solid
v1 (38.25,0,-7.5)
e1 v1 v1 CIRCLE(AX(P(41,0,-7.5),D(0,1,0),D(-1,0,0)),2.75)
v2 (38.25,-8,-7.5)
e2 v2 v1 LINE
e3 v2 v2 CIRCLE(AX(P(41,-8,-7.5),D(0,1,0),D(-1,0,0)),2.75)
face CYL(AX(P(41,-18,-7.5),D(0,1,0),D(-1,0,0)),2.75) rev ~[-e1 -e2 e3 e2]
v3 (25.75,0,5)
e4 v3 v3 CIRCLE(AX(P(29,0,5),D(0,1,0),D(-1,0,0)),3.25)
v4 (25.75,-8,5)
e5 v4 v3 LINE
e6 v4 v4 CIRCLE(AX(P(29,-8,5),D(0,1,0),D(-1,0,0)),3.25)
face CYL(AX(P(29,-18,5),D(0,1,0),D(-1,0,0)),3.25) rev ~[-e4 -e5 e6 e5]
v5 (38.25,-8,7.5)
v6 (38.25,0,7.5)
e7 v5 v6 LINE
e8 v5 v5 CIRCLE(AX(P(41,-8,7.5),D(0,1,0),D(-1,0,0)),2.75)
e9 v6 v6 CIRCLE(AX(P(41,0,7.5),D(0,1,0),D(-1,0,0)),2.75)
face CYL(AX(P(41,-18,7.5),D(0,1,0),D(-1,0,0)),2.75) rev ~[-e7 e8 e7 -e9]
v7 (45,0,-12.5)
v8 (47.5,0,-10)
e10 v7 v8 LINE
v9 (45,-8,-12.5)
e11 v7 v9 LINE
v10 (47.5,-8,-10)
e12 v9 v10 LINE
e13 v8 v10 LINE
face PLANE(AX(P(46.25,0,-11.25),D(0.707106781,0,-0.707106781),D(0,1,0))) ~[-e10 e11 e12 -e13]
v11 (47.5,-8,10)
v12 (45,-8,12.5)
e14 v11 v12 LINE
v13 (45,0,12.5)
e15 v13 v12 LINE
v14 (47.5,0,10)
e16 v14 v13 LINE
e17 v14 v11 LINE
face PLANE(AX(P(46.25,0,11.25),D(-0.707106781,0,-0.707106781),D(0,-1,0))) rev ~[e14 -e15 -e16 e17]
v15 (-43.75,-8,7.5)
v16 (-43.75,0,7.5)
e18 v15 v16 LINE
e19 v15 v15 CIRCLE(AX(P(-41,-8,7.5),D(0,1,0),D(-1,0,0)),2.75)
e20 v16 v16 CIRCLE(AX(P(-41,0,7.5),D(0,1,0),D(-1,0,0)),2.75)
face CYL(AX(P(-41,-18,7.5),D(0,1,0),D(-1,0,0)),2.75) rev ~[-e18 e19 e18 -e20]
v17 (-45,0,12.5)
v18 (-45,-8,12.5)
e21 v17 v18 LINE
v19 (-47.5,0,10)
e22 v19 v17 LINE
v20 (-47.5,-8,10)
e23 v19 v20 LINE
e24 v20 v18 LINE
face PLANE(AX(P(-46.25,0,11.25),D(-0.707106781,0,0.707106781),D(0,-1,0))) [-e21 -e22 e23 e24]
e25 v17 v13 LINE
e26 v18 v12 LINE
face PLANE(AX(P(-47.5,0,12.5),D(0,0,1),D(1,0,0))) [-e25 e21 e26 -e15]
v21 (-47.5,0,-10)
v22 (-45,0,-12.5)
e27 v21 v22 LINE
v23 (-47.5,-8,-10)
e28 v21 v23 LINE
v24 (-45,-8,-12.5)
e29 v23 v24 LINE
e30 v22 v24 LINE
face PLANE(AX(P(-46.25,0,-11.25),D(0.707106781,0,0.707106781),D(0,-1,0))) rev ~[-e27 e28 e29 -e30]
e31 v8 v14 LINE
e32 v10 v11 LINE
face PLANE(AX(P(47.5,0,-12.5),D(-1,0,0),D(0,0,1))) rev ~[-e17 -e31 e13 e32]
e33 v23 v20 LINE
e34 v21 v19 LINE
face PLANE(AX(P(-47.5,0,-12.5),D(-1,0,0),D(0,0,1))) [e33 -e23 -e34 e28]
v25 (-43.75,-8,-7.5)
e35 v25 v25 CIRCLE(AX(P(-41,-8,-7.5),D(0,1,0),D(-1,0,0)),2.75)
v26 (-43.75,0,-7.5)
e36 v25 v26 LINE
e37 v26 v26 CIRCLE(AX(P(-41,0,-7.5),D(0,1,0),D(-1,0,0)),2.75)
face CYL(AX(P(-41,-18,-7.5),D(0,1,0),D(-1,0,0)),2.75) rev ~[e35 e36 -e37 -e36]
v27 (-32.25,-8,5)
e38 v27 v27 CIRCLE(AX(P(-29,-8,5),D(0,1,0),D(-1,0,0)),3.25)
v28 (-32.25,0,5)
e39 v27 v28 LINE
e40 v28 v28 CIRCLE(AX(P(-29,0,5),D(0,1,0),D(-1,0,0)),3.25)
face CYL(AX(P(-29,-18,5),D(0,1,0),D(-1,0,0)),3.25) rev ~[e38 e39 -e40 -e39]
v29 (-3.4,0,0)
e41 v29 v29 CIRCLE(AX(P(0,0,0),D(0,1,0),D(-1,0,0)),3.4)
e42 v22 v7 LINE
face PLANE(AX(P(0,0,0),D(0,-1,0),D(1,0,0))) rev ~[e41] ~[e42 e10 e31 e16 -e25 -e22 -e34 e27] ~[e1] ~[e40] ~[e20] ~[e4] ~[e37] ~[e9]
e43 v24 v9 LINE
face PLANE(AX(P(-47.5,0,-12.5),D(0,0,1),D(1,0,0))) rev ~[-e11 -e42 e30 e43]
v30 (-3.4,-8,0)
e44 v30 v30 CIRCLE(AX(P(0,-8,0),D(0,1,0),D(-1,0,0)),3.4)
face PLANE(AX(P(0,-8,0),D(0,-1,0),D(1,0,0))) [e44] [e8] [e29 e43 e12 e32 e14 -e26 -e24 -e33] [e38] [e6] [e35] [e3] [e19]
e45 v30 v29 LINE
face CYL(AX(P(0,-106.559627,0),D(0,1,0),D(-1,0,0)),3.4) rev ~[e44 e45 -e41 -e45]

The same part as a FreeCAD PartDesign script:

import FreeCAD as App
import Part
import Sketcher
from FreeCAD import Vector
Q = App.Units.Quantity


def edges_at(feature, points):
    """Names of the edges that pass closest to the given points."""
    edges = feature.Shape.Edges
    near = lambda p: min(range(len(edges)), key=lambda i: edges[i].distToShape(Part.Vertex(*p))[0])
    return sorted({f"Edge{near(p) + 1}" for p in points})

doc = App.newDocument("Part")
params = doc.addObject("Spreadsheet::Sheet", "Params")
for row, (alias, value) in enumerate([
    ("sketch1_width", "95 mm"),
    ("sketch1_height", "25 mm"),
    ("pad1_length", "8 mm"),
    ("chamfer_size", "2.5 mm"),
    ("sketch2_diameter", "5.5 mm"),
    ("hole_diameter", "5.5 mm"),
    ("hole_depth", "10 mm"),
    ("sketch3_diameter", "6.5 mm"),
    ("hole2_diameter", "6.5 mm"),
    ("hole2_depth", "10 mm"),
    ("sketch4_diameter", "6.8 mm"),
    ("hole3_diameter", "6.8 mm"),
], start=1):
    params.set(f"A{row}", alias)
    params.set(f"B{row}", "=" + value)
    params.setAlias(f"B{row}", alias)

body = doc.addObject("PartDesign::Body", "Body")

# Sketch on XZ plane
sketch1 = body.newObject("Sketcher::SketchObject", "Sketch")
sketch1.AttachmentSupport = (doc.getObject("XZ_Plane"), [""])
sketch1.MapMode = "FlatFace"
sketch1.addGeometry([
    Part.LineSegment(Vector(-48, 12, 0), Vector(-48, -12, 0)),
    Part.LineSegment(Vector(-48, -12, 0), Vector(48, -12, 0)),
    Part.LineSegment(Vector(48, -12, 0), Vector(48, 12, 0)),
    Part.LineSegment(Vector(48, 12, 0), Vector(-48, 12, 0)),
], False)
sketch1.addConstraint([
    Sketcher.Constraint("Coincident", 0, 2, 1, 1),
    Sketcher.Constraint("Coincident", 1, 2, 2, 1),
    Sketcher.Constraint("Coincident", 2, 2, 3, 1),
    Sketcher.Constraint("Coincident", 3, 2, 0, 1),
    Sketcher.Constraint("Vertical", 0),
    Sketcher.Constraint("Horizontal", 1),
    Sketcher.Constraint("Vertical", 2),
    Sketcher.Constraint("Horizontal", 3),
    Sketcher.Constraint("Symmetric", 0, 2, 2, 2, -1, 1),
    Sketcher.Constraint("DistanceX", 1, 1, 1, 2, Q("95 mm")),
    Sketcher.Constraint("DistanceY", 0, 2, 0, 1, Q("25 mm")),
])
sketch1.setExpression("Constraints[9]", "Params.sketch1_width")
sketch1.setExpression("Constraints[10]", "Params.sketch1_height")
pad1 = body.newObject("PartDesign::Pad", "Pad")
pad1.Profile = sketch1
pad1.setExpression("Length", "Params.pad1_length")
doc.recompute()

chamfer = body.newObject("PartDesign::Chamfer", "Chamfer")
chamfer.Base = (pad1, edges_at(pad1, [
    (47.5, -4, 12.5),
    (47.5, -4, -12.5),
    (-47.5, -4, 12.5),
    (-47.5, -4, -12.5),
]))
chamfer.setExpression("Size", "Params.chamfer_size")

# Sketch on XZ plane
sketch2 = body.newObject("Sketcher::SketchObject", "Sketch001")
sketch2.AttachmentSupport = (doc.getObject("XZ_Plane"), [""])
sketch2.MapMode = "FlatFace"
sketch2.AttachmentOffset = App.Placement(Vector(0, 0, 8), App.Rotation())
sketch2.addGeometry([
    Part.Circle(Vector(-41, 7.5, 0), Vector(0, 0, 1), 2.8),
    Part.Circle(Vector(-41, -7.5, 0), Vector(0, 0, 1), 2.8),
    Part.Circle(Vector(41, -7.5, 0), Vector(0, 0, 1), 2.8),
    Part.Circle(Vector(41, 7.5, 0), Vector(0, 0, 1), 2.8),
], False)
sketch2.addConstraint([
    Sketcher.Constraint("Equal", 0, 1),
    Sketcher.Constraint("Equal", 1, 2),
    Sketcher.Constraint("Equal", 2, 3),
    Sketcher.Constraint("Symmetric", 0, 3, 2, 3, -1, 1),
    Sketcher.Constraint("Symmetric", 1, 3, 3, 3, -1, 1),
    Sketcher.Constraint("Symmetric", 1, 3, 2, 3, -2),
    Sketcher.Constraint("Diameter", 0, Q("5.5 mm")),
    Sketcher.Constraint("DistanceX", 0, 3, -1, 1, Q("41 mm")),
    Sketcher.Constraint("DistanceY", 1, 3, 0, 3, Q("15 mm")),
])
sketch2.setExpression("Constraints[6]", "Params.sketch2_diameter")
doc.recompute()
hole = body.newObject("PartDesign::Hole", "Hole")
hole.Profile = sketch2
hole.ThreadType = "None"
hole.setExpression("Diameter", "Params.hole_diameter")
hole.DepthType = "Dimension"
hole.setExpression("Depth", "Params.hole_depth")
hole.DrillPoint = "Angled"
hole.DrillPointAngle = 118

# Sketch on XZ plane
sketch3 = body.newObject("Sketcher::SketchObject", "Sketch002")
sketch3.AttachmentSupport = (doc.getObject("XZ_Plane"), [""])
sketch3.MapMode = "FlatFace"
sketch3.AttachmentOffset = App.Placement(Vector(0, 0, 8), App.Rotation())
sketch3.addGeometry([
    Part.Circle(Vector(-29, 5, 0), Vector(0, 0, 1), 3.2),
    Part.Circle(Vector(29, 5, 0), Vector(0, 0, 1), 3.2),
], False)
sketch3.addConstraint([
    Sketcher.Constraint("Equal", 0, 1),
    Sketcher.Constraint("Symmetric", 0, 3, 1, 3, -2),
    Sketcher.Constraint("Diameter", 0, Q("6.5 mm")),
    Sketcher.Constraint("DistanceX", 0, 3, -1, 1, Q("29 mm")),
    Sketcher.Constraint("DistanceY", -1, 1, 0, 3, Q("5 mm")),
])
sketch3.setExpression("Constraints[2]", "Params.sketch3_diameter")
doc.recompute()
hole2 = body.newObject("PartDesign::Hole", "Hole001")
hole2.Profile = sketch3
hole2.ThreadType = "None"
hole2.setExpression("Diameter", "Params.hole2_diameter")
hole2.DepthType = "Dimension"
hole2.setExpression("Depth", "Params.hole2_depth")
hole2.DrillPoint = "Angled"
hole2.DrillPointAngle = 118

# Sketch on XZ plane
sketch4 = body.newObject("Sketcher::SketchObject", "Sketch003")
sketch4.AttachmentSupport = (doc.getObject("XZ_Plane"), [""])
sketch4.MapMode = "FlatFace"
sketch4.AttachmentOffset = App.Placement(Vector(0, 0, 8), App.Rotation())
sketch4.addGeometry(Part.Circle(Vector(0, 0, 0), Vector(0, 0, 1), 3.4), False)
sketch4.addConstraint([
    Sketcher.Constraint("Coincident", 0, 3, -1, 1),
    Sketcher.Constraint("Diameter", 0, Q("6.8 mm")),
])
sketch4.setExpression("Constraints[1]", "Params.sketch4_diameter")
doc.recompute()
hole3 = body.newObject("PartDesign::Hole", "Hole002")
hole3.Profile = sketch4
hole3.ThreadType = "None"
hole3.setExpression("Diameter", "Params.hole3_diameter")
hole3.DepthType = "ThroughAll"

doc.recompute()
